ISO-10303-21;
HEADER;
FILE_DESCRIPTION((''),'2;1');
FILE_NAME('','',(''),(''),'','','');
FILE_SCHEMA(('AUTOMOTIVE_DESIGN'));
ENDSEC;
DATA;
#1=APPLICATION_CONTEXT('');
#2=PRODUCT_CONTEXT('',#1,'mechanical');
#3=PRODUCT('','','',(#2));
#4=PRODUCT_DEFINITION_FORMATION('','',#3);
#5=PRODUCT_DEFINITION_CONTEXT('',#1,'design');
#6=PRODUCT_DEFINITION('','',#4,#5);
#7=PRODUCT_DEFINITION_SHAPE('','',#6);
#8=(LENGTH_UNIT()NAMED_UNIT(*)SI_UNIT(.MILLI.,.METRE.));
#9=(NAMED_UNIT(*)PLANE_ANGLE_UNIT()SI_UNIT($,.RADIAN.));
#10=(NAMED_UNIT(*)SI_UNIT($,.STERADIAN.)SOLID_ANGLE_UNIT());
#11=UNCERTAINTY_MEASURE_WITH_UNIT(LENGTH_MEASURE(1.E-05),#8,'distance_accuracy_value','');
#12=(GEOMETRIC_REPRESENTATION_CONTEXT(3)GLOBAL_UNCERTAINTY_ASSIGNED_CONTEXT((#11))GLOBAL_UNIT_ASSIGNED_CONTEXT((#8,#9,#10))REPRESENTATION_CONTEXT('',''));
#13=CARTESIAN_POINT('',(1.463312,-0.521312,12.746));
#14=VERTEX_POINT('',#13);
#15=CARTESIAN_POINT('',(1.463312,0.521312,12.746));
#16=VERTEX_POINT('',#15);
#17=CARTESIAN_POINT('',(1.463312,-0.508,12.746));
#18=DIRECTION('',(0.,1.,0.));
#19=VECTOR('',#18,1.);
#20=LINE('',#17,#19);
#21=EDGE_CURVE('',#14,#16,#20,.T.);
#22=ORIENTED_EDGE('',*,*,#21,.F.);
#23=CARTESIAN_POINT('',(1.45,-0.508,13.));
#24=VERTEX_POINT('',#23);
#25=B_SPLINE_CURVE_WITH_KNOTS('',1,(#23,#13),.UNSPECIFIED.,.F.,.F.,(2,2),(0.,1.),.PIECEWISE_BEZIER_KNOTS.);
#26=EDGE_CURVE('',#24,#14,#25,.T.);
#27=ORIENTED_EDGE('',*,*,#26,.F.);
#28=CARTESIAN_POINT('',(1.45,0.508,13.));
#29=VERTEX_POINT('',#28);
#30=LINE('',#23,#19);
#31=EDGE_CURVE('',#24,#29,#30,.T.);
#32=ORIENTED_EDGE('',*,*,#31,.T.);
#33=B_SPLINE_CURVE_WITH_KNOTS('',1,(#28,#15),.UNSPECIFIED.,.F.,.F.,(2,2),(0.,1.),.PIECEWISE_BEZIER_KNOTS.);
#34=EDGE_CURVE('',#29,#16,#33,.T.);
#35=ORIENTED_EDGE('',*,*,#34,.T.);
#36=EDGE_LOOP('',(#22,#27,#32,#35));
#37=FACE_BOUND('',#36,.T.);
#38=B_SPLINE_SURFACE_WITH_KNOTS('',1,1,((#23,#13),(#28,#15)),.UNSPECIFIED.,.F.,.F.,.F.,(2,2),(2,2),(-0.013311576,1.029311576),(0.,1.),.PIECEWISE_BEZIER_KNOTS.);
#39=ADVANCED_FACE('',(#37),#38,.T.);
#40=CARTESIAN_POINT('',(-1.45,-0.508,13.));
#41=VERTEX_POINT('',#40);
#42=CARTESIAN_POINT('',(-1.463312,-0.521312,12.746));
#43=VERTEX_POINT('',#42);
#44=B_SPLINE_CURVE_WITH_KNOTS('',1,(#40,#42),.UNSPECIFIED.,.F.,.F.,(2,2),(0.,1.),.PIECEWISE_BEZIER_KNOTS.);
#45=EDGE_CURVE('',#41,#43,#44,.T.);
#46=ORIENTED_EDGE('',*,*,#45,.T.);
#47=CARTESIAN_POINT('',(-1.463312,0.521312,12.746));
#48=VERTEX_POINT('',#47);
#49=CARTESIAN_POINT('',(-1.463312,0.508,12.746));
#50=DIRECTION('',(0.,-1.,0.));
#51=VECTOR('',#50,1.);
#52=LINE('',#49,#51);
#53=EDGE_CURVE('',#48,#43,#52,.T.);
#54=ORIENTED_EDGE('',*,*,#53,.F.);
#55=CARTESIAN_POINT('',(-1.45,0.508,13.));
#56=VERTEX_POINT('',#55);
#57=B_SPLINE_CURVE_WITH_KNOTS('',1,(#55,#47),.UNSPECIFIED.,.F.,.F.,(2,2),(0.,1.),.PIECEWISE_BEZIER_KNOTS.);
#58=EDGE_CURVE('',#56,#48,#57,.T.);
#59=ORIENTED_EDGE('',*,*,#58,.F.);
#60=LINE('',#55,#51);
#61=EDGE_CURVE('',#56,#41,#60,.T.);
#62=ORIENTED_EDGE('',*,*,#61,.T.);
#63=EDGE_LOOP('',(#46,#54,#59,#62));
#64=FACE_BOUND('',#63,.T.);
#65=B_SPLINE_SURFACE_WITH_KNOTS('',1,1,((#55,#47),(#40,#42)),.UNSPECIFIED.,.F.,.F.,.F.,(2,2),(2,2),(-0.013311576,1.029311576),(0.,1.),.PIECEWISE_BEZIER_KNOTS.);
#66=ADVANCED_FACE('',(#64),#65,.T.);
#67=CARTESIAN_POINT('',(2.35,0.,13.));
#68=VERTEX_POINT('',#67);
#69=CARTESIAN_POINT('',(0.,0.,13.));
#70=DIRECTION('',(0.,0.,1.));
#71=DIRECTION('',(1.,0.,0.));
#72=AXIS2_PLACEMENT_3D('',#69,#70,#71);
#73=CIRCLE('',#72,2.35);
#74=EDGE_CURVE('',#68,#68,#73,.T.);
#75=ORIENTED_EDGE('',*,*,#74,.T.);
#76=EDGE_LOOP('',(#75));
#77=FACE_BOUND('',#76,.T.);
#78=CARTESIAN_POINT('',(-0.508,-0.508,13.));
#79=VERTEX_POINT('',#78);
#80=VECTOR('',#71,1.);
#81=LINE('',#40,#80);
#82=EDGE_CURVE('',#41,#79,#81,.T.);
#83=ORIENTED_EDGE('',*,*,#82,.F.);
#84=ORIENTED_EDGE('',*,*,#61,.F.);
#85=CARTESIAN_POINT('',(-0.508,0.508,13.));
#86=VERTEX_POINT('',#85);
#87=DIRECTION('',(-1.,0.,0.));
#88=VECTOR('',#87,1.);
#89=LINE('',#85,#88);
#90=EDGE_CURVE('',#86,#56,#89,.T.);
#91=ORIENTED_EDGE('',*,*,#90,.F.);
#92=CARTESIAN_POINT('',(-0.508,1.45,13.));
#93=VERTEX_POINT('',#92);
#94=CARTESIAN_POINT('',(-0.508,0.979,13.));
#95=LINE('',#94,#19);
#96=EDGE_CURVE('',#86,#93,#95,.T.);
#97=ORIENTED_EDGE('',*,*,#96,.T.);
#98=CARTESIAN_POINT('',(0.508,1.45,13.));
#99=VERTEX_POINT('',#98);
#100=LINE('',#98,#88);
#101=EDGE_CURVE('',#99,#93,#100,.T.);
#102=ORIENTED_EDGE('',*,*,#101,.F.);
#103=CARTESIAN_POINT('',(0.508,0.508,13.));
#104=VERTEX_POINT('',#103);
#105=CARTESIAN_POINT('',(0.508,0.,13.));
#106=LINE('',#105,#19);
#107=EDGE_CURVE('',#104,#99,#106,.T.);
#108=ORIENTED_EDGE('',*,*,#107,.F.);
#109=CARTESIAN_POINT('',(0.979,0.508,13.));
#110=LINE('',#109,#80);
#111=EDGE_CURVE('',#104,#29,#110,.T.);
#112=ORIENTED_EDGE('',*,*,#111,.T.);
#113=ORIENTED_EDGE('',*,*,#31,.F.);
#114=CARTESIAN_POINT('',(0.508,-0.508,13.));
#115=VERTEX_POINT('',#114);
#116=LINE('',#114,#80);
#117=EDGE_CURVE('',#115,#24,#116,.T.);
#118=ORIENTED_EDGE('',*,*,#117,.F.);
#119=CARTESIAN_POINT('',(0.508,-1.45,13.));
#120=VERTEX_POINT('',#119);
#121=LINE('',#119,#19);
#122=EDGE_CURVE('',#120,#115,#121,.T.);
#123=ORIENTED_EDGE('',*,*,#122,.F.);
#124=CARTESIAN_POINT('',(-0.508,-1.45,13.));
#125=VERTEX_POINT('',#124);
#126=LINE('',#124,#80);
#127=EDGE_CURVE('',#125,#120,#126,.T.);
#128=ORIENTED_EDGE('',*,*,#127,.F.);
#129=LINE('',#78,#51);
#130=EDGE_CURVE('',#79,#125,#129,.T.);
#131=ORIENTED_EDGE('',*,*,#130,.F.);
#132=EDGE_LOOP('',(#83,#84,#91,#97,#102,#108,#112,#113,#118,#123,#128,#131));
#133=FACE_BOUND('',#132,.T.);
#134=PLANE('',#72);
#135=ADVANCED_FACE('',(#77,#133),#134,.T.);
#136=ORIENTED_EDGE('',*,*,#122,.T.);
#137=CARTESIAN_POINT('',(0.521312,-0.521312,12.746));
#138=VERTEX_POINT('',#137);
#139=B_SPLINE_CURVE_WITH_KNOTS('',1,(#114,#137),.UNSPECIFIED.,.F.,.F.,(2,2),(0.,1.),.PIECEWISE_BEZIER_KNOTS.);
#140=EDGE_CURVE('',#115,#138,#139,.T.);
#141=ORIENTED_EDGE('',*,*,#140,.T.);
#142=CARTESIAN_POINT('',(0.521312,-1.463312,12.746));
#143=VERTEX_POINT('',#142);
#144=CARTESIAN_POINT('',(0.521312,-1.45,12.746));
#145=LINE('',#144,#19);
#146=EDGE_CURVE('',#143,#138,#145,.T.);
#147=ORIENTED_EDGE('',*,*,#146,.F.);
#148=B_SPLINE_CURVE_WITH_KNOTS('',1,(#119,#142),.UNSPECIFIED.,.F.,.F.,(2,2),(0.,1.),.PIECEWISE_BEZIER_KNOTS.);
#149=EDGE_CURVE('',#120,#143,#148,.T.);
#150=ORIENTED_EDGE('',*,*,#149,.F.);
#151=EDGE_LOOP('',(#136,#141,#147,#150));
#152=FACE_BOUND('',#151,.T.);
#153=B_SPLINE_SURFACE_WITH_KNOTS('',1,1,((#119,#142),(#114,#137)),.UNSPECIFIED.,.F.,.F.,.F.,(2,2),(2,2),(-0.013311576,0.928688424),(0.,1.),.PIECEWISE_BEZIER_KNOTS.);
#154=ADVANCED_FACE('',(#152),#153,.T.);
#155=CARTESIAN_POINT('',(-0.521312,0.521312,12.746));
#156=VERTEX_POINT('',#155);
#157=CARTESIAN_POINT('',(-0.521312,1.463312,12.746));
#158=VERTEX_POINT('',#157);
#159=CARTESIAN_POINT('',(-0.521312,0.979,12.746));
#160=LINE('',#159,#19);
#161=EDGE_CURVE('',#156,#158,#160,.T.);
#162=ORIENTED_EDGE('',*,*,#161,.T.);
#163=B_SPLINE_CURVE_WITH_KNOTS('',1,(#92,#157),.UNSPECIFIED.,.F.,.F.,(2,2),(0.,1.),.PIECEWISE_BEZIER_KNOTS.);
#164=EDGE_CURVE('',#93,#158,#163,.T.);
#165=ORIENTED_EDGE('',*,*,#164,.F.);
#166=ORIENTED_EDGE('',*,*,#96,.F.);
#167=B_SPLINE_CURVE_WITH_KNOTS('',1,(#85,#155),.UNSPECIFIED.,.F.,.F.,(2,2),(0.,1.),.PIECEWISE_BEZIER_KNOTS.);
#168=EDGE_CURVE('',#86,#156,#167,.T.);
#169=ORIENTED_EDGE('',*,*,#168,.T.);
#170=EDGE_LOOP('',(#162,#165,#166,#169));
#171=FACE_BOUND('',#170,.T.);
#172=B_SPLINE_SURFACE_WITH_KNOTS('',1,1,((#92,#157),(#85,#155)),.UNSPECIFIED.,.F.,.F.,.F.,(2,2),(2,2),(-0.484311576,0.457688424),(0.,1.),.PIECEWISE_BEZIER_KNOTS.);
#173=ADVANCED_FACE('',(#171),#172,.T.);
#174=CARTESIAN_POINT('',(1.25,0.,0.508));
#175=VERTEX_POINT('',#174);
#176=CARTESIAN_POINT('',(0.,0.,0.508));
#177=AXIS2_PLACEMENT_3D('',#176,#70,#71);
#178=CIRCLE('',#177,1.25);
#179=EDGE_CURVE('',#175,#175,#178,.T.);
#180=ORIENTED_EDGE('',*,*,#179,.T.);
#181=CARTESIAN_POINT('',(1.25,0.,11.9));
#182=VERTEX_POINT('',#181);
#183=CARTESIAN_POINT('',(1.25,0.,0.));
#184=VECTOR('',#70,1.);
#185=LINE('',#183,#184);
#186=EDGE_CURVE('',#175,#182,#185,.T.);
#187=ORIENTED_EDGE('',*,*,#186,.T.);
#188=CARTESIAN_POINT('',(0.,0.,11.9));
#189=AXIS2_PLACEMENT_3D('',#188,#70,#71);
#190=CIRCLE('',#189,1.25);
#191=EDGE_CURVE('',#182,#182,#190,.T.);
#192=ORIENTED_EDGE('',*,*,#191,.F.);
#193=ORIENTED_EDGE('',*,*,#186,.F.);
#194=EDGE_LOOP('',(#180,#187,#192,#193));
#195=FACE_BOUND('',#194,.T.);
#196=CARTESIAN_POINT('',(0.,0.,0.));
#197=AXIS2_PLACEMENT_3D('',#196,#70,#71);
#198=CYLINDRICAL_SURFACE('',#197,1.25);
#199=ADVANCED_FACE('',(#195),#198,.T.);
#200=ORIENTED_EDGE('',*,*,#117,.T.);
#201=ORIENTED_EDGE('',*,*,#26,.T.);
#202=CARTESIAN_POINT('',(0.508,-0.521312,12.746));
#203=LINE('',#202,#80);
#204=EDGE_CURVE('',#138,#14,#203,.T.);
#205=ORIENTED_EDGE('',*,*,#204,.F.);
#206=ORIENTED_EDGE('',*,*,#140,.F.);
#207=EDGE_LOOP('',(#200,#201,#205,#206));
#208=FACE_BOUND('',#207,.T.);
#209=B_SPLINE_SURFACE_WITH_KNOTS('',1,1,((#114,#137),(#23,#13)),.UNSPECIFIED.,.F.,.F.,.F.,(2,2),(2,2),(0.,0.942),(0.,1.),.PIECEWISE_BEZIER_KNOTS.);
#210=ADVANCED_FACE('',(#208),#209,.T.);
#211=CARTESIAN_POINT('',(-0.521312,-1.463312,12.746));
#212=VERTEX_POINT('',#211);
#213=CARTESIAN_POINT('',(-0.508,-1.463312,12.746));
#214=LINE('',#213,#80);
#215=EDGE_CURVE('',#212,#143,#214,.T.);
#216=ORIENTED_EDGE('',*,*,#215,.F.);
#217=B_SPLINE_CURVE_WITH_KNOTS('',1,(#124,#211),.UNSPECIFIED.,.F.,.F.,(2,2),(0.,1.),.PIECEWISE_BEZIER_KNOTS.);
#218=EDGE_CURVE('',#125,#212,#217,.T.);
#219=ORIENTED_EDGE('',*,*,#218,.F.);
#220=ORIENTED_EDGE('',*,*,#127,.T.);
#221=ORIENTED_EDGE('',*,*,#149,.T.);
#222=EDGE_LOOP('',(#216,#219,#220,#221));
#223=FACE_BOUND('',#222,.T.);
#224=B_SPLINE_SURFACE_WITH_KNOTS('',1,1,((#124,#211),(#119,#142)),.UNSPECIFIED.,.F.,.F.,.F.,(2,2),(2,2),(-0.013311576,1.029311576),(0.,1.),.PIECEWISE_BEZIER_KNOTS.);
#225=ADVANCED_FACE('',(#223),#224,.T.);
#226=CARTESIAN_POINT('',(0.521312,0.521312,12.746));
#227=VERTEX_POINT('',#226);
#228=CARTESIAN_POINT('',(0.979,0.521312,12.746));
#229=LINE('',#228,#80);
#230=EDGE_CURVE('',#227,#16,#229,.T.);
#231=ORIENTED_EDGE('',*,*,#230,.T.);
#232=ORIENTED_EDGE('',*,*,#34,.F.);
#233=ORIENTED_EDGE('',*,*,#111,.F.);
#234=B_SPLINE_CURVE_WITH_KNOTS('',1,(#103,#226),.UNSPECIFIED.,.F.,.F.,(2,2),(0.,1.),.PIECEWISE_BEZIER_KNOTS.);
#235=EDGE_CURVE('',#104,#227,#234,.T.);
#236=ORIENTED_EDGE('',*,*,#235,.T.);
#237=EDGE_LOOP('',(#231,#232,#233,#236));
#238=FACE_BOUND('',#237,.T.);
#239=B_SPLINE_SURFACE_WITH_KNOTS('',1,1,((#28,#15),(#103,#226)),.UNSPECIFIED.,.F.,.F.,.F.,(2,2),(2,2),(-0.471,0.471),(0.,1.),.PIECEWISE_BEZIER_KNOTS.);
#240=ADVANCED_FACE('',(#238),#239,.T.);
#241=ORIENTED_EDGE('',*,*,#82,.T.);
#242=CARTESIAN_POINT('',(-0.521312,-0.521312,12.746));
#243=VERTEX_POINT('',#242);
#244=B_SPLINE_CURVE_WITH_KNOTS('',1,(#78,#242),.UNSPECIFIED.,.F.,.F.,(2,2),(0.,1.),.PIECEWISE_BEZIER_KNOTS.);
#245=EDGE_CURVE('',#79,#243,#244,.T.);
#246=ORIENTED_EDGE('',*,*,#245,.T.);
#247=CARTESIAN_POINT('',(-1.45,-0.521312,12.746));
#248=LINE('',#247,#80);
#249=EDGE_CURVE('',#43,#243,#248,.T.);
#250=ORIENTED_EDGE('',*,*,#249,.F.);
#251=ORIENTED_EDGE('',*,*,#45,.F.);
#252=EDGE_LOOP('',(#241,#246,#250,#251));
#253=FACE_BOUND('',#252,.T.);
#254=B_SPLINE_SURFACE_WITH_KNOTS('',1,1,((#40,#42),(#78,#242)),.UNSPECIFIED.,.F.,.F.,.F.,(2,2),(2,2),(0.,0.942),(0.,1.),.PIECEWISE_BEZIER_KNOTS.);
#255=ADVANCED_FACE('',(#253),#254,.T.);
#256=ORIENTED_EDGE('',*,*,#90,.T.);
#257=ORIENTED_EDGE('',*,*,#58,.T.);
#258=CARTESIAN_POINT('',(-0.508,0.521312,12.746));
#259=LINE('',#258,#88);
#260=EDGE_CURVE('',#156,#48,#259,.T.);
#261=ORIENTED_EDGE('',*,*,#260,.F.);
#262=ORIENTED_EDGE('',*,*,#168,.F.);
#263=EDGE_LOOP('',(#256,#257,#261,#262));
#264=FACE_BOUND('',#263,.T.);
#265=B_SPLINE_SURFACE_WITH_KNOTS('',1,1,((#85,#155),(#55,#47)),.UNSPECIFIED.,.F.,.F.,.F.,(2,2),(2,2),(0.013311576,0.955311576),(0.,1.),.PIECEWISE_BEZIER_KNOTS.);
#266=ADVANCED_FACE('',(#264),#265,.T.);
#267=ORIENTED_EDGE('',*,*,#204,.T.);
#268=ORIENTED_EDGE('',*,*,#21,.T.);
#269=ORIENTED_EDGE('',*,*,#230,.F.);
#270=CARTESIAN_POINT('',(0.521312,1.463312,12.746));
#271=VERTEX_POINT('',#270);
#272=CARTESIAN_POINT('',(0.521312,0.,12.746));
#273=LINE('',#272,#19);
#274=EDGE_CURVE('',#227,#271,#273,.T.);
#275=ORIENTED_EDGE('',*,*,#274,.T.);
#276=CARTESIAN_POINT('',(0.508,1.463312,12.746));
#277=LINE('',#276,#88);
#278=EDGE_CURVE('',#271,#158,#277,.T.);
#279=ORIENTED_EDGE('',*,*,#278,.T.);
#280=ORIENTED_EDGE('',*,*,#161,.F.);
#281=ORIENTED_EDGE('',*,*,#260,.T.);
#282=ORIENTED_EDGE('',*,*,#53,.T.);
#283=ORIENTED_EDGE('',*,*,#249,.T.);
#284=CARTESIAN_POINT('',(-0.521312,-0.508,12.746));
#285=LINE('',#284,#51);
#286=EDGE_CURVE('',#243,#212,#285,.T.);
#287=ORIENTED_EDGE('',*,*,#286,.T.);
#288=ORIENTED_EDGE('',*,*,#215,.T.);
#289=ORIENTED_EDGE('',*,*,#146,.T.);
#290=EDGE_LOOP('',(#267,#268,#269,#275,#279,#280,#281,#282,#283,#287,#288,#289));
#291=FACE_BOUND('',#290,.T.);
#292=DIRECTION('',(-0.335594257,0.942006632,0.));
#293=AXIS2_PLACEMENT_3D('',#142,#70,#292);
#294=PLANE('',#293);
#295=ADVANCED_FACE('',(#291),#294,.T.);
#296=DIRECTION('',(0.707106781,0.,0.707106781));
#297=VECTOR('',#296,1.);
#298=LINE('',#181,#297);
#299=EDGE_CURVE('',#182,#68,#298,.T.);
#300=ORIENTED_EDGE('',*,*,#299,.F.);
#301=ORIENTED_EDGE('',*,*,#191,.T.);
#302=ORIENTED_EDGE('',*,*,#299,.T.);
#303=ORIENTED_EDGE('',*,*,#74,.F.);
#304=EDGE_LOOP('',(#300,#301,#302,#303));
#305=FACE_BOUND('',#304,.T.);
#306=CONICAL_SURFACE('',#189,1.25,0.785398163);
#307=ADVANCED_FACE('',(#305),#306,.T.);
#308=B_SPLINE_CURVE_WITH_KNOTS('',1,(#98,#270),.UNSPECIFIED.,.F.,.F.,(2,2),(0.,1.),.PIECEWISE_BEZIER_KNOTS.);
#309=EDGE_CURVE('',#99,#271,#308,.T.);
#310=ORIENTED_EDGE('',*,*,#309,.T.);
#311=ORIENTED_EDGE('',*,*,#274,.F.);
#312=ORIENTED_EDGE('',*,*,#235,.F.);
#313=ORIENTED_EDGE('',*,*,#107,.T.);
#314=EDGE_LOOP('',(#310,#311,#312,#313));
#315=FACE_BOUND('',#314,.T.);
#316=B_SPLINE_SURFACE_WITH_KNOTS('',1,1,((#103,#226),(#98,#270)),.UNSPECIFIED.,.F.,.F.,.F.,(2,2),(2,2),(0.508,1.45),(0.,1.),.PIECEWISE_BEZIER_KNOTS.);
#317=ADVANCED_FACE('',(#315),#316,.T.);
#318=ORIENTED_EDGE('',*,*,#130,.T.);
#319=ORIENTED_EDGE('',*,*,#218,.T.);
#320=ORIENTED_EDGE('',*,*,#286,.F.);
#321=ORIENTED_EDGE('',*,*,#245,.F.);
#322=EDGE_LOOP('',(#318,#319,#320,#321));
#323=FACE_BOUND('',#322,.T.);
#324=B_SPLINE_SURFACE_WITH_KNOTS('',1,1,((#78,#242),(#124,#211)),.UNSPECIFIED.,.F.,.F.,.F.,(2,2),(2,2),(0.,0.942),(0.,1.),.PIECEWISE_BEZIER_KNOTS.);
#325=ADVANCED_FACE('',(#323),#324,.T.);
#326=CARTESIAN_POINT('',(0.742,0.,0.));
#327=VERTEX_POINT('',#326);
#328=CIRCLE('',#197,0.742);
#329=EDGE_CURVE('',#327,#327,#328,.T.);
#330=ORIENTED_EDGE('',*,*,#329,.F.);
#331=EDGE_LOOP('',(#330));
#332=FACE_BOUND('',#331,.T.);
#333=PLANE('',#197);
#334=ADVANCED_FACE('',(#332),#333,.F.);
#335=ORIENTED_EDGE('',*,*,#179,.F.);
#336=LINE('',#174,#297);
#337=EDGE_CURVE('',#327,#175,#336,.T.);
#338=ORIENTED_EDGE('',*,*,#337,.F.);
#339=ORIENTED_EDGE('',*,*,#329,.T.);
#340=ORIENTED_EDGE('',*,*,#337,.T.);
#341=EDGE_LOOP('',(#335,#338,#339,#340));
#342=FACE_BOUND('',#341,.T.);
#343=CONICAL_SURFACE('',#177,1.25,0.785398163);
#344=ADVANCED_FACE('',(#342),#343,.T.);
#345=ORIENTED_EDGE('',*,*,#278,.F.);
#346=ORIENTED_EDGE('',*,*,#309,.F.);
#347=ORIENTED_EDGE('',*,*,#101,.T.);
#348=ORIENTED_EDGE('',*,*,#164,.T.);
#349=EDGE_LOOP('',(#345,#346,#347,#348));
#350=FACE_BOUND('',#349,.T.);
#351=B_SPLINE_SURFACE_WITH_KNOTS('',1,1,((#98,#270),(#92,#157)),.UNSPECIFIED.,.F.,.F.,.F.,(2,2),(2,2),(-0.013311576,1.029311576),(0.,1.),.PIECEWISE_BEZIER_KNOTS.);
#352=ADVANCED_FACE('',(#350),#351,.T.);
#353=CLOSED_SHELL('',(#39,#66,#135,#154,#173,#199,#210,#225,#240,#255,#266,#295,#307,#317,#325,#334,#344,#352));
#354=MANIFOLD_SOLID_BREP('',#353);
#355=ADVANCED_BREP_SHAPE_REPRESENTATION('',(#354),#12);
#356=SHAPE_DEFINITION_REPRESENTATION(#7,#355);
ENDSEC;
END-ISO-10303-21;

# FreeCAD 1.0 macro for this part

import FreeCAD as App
import Part
import Sketcher
Q = App.Units.Quantity


def edges_at(feature, points):
    """Names of the edges that pass closest to the given points."""
    edges = feature.Shape.Edges
    near = lambda p: min(range(len(edges)), key=lambda i: edges[i].distToShape(Part.Vertex(*p))[0])
    return sorted({f"Edge{near(p) + 1}" for p in points})

doc = App.newDocument("Part")
body = doc.addObject("PartDesign::Body", "Body")

# Sketch on XZ plane
sketch1 = body.newObject("Sketcher::SketchObject", "Sketch")
sketch1.AttachmentSupport = (doc.getObject("XZ_Plane"), [""])
sketch1.MapMode = "FlatFace"
sketch1.addGeometry([
    Part.LineSegment(App.Vector(0, 13, 0), App.Vector(0, 0, 0)),  # 0
    Part.LineSegment(App.Vector(0, 0, 0), App.Vector(1.2, 0, 0)),  # 1
    Part.LineSegment(App.Vector(1.2, 0, 0), App.Vector(1.2, 11.9, 0)),  # 2
    Part.LineSegment(App.Vector(1.2, 11.9, 0), App.Vector(2.4, 13, 0)),  # 3
    Part.LineSegment(App.Vector(2.4, 13, 0), App.Vector(0, 13, 0)),  # 4
], False)
sketch1.addConstraint([
    Sketcher.Constraint("Coincident", 0, 2, 1, 1),
    Sketcher.Constraint("Coincident", 1, 2, 2, 1),
    Sketcher.Constraint("Coincident", 2, 2, 3, 1),
    Sketcher.Constraint("Coincident", 3, 2, 4, 1),
    Sketcher.Constraint("Coincident", 4, 2, 0, 1),
    Sketcher.Constraint("Vertical", 0),
    Sketcher.Constraint("Horizontal", 1),
    Sketcher.Constraint("Vertical", 2),
    Sketcher.Constraint("Horizontal", 4),
    Sketcher.Constraint("Coincident", 0, 2, -1, 1),
    Sketcher.Constraint("Angle", 3, Q("45 deg")),
    Sketcher.Constraint("DistanceX", 1, 1, 1, 2, 1.25),
    Sketcher.Constraint("DistanceX", 4, 2, 4, 1, 2.35),
    Sketcher.Constraint("DistanceY", 0, 2, 0, 1, 13.0),
])
revolution = body.newObject("PartDesign::Revolution", "Revolution")
revolution.Profile = sketch1
revolution.ReferenceAxis = (sketch1, ["V_Axis"])
revolution.Angle = 360

# Sketch on XY plane
sketch2 = body.newObject("Sketcher::SketchObject", "Sketch001")
sketch2.AttachmentSupport = (doc.getObject("XY_Plane"), [""])
sketch2.MapMode = "FlatFace"
sketch2.AttachmentOffset = App.Placement(App.Vector(0, 0, 13), App.Rotation())
sketch2.addGeometry([
    Part.LineSegment(App.Vector(0.5, -1.4, 0), App.Vector(0.5, -0.5, 0)),  # 0
    Part.LineSegment(App.Vector(0.5, -0.5, 0), App.Vector(1.4, -0.5, 0)),  # 1
    Part.LineSegment(App.Vector(1.4, -0.5, 0), App.Vector(1.4, 0.5, 0)),  # 2
    Part.LineSegment(App.Vector(1.4, 0.5, 0), App.Vector(0.5, 0.5, 0)),  # 3
    Part.LineSegment(App.Vector(0.5, 0.5, 0), App.Vector(0.5, 1.4, 0)),  # 4
    Part.LineSegment(App.Vector(0.5, 1.4, 0), App.Vector(-0.5, 1.4, 0)),  # 5
    Part.LineSegment(App.Vector(-0.5, 1.4, 0), App.Vector(-0.5, 0.5, 0)),  # 6
    Part.LineSegment(App.Vector(-0.5, 0.5, 0), App.Vector(-1.4, 0.5, 0)),  # 7
    Part.LineSegment(App.Vector(-1.4, 0.5, 0), App.Vector(-1.4, -0.5, 0)),  # 8
    Part.LineSegment(App.Vector(-1.4, -0.5, 0), App.Vector(-0.5, -0.5, 0)),  # 9
    Part.LineSegment(App.Vector(-0.5, -0.5, 0), App.Vector(-0.5, -1.4, 0)),  # 10
    Part.LineSegment(App.Vector(-0.5, -1.4, 0), App.Vector(0.5, -1.4, 0)),  # 11
], False)
sketch2.addConstraint([
    Sketcher.Constraint("Coincident", 0, 2, 1, 1),
    Sketcher.Constraint("Coincident", 1, 2, 2, 1),
    Sketcher.Constraint("Coincident", 2, 2, 3, 1),
    Sketcher.Constraint("Coincident", 3, 2, 4, 1),
    Sketcher.Constraint("Coincident", 4, 2, 5, 1),
    Sketcher.Constraint("Coincident", 5, 2, 6, 1),
    Sketcher.Constraint("Coincident", 6, 2, 7, 1),
    Sketcher.Constraint("Coincident", 7, 2, 8, 1),
    Sketcher.Constraint("Coincident", 8, 2, 9, 1),
    Sketcher.Constraint("Coincident", 9, 2, 10, 1),
    Sketcher.Constraint("Coincident", 10, 2, 11, 1),
    Sketcher.Constraint("Coincident", 11, 2, 0, 1),
    Sketcher.Constraint("Vertical", 0),
    Sketcher.Constraint("Horizontal", 1),
    Sketcher.Constraint("Vertical", 2),
    Sketcher.Constraint("Horizontal", 3),
    Sketcher.Constraint("Vertical", 4),
    Sketcher.Constraint("Horizontal", 5),
    Sketcher.Constraint("Vertical", 6),
    Sketcher.Constraint("Horizontal", 7),
    Sketcher.Constraint("Vertical", 8),
    Sketcher.Constraint("Horizontal", 9),
    Sketcher.Constraint("Vertical", 10),
    Sketcher.Constraint("Horizontal", 11),
    Sketcher.Constraint("Symmetric", 0, 2, 6, 2, -1, 1),
    Sketcher.Constraint("Symmetric", 2, 2, 8, 2, -1, 1),
    Sketcher.Constraint("Symmetric", 4, 2, 10, 2, -1, 1),
    Sketcher.Constraint("Symmetric", 3, 2, 6, 2, -2),
    Sketcher.Constraint("Equal", 9, 0),
    Sketcher.Constraint("Equal", 11, 2),
    Sketcher.Constraint("DistanceX", 5, 2, 5, 1, Q("0.04 in")),
    Sketcher.Constraint("DistanceX", 1, 1, 1, 2, 0.942),
])
pocket1 = body.newObject("PartDesign::Pocket", "Pocket")
pocket1.Profile = sketch2
pocket1.Length = Q("0.01 in")
pocket1.TaperAngle = 3
doc.recompute()

chamfer = body.newObject("PartDesign::Chamfer", "Chamfer")
chamfer.Base = (pocket1, edges_at(pocket1, [(-1.25, 0, 0)]))
chamfer.Size = Q("0.02 in")

doc.recompute()
